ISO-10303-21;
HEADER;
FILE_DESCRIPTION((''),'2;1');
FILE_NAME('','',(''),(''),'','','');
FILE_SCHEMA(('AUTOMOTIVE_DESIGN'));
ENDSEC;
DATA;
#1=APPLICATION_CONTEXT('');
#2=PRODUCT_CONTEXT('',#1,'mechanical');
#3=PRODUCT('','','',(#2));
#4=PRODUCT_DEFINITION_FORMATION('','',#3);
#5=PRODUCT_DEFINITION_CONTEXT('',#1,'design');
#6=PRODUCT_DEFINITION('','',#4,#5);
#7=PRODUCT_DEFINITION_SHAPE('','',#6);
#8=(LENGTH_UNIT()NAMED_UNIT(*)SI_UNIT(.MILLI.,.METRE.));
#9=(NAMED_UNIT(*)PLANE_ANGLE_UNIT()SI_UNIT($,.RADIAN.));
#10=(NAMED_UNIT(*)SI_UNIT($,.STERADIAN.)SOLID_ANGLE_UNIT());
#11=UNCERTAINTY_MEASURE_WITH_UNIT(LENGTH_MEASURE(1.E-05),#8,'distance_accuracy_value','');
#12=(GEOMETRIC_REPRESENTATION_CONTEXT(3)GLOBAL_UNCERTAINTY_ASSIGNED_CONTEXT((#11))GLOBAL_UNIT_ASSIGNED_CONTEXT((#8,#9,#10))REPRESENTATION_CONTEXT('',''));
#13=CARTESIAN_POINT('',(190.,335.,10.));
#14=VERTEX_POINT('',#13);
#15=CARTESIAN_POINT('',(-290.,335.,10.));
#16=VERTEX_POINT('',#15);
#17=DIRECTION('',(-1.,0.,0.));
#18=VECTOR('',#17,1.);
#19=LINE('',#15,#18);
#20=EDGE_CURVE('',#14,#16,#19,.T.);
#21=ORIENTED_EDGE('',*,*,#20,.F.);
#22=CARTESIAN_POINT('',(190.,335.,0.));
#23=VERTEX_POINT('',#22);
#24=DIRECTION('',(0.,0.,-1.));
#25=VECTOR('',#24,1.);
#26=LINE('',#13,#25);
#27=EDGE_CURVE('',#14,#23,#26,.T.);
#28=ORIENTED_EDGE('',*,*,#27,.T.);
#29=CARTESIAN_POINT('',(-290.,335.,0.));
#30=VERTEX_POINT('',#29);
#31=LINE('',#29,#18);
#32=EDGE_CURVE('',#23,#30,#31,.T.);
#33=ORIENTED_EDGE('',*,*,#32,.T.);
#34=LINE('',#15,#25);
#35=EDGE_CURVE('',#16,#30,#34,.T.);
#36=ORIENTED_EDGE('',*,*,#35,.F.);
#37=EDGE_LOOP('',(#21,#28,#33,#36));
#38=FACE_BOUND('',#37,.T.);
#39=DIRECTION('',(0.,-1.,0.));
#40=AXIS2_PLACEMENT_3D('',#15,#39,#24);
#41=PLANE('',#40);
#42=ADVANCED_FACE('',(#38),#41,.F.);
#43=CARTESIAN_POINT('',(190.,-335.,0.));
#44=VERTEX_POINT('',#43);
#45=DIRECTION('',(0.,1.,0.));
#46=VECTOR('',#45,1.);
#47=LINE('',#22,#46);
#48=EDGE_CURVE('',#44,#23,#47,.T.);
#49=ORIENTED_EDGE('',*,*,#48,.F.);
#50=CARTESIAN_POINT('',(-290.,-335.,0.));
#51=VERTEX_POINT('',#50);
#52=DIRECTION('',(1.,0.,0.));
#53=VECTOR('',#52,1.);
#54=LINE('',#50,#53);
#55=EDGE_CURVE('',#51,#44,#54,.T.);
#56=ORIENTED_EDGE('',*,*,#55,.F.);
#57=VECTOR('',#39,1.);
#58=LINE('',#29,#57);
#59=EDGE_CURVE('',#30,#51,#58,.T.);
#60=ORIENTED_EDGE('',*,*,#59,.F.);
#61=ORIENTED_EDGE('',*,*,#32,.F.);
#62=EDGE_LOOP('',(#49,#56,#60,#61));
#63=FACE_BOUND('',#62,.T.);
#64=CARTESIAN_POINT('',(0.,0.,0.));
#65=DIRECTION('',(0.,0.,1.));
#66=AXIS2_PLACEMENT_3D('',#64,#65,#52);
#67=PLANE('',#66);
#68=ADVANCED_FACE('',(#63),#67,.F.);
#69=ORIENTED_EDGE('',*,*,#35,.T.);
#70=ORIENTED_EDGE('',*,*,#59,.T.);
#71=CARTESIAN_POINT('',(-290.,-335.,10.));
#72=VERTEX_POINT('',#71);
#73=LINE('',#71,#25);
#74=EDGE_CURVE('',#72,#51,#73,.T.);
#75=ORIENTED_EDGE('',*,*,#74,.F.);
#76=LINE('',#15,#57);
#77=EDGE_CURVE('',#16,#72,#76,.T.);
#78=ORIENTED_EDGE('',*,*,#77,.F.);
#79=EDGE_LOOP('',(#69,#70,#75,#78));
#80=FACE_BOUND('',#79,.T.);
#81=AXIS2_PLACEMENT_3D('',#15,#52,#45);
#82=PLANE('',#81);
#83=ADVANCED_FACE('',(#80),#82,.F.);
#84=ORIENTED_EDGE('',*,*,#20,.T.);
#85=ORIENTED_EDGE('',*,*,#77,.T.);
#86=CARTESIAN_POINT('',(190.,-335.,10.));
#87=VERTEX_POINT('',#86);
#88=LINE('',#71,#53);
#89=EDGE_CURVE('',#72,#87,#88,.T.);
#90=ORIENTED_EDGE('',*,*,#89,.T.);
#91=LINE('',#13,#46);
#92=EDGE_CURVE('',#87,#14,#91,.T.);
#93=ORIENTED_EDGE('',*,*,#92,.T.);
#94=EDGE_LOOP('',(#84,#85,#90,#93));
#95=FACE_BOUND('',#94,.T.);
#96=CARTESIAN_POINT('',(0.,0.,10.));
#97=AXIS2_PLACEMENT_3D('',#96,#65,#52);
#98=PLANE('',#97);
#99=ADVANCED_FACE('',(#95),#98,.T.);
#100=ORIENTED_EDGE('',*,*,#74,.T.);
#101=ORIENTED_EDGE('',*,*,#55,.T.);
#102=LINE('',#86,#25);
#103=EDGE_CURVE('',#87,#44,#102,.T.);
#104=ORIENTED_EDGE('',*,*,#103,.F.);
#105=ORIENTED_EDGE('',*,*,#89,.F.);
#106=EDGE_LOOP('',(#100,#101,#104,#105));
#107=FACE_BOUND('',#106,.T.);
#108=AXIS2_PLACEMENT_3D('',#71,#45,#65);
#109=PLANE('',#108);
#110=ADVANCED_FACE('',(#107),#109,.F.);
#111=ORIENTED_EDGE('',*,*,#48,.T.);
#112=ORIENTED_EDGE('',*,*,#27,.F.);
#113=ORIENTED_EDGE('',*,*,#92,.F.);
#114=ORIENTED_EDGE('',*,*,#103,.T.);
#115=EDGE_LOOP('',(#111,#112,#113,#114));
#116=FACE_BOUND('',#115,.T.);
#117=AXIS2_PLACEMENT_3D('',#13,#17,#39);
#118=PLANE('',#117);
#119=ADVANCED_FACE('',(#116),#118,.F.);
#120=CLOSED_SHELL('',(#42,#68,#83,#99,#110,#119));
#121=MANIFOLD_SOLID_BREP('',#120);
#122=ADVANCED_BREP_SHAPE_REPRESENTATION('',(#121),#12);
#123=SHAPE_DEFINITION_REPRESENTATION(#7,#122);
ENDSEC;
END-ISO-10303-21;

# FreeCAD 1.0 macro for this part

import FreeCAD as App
import Part
import Sketcher

V = App.Vector
Q = App.Units.Quantity


def add_polygon(sketch, points):
    """Adds a closed chain of lines whose ends are joined by coincident constraints."""
    first, n = sketch.GeometryCount, len(points)
    for a, b in zip(points, points[1:] + points[:1]):
        sketch.addGeometry(Part.LineSegment(App.Vector(*a, 0), App.Vector(*b, 0)), False)
    for i in range(n):
        sketch.addConstraint(Sketcher.Constraint("Coincident", first + i, 2, first + (i + 1) % n, 1))

doc = App.newDocument("Part")
params = doc.addObject("Spreadsheet::Sheet", "Params")
for row, (alias, value) in enumerate([
    ("sketch1_width", "480 mm"),
    ("sketch1_height", "670 mm"),
    ("pad1_length", "10 mm"),
], start=1):
    params.set(f"A{row}", alias)
    params.set(f"B{row}", "=" + value)
    params.setAlias(f"B{row}", alias)

body = doc.addObject("PartDesign::Body", "Body")

# Sketch on XY plane
sketch1 = body.newObject("Sketcher::SketchObject", "Sketch")
sketch1.AttachmentSupport = (doc.getObject("XY_Plane"), [""])
sketch1.MapMode = "FlatFace"
add_polygon(sketch1, [(-290, 335), (-290, -335), (190, -335), (190, 335)])  # lines 0-3
sketch1.addConstraint([
    Sketcher.Constraint("Vertical", 0),
    Sketcher.Constraint("Horizontal", 1),
    Sketcher.Constraint("Vertical", 2),
    Sketcher.Constraint("Horizontal", 3),
    Sketcher.Constraint("DistanceX", 1, 1, 1, 2, Q("480 mm")),
    Sketcher.Constraint("DistanceY", 0, 2, 0, 1, Q("670 mm")),
    Sketcher.Constraint("DistanceX", 0, 2, -1, 1, Q("290 mm")),
    Sketcher.Constraint("DistanceY", 0, 2, -1, 1, Q("335 mm")),
])
sketch1.setExpression("Constraints[8]", "Params.sketch1_width")
sketch1.setExpression("Constraints[9]", "Params.sketch1_height")
pad1 = body.newObject("PartDesign::Pad", "Pad")
pad1.Profile = sketch1
pad1.setExpression("Length", "Params.pad1_length")

doc.recompute()
